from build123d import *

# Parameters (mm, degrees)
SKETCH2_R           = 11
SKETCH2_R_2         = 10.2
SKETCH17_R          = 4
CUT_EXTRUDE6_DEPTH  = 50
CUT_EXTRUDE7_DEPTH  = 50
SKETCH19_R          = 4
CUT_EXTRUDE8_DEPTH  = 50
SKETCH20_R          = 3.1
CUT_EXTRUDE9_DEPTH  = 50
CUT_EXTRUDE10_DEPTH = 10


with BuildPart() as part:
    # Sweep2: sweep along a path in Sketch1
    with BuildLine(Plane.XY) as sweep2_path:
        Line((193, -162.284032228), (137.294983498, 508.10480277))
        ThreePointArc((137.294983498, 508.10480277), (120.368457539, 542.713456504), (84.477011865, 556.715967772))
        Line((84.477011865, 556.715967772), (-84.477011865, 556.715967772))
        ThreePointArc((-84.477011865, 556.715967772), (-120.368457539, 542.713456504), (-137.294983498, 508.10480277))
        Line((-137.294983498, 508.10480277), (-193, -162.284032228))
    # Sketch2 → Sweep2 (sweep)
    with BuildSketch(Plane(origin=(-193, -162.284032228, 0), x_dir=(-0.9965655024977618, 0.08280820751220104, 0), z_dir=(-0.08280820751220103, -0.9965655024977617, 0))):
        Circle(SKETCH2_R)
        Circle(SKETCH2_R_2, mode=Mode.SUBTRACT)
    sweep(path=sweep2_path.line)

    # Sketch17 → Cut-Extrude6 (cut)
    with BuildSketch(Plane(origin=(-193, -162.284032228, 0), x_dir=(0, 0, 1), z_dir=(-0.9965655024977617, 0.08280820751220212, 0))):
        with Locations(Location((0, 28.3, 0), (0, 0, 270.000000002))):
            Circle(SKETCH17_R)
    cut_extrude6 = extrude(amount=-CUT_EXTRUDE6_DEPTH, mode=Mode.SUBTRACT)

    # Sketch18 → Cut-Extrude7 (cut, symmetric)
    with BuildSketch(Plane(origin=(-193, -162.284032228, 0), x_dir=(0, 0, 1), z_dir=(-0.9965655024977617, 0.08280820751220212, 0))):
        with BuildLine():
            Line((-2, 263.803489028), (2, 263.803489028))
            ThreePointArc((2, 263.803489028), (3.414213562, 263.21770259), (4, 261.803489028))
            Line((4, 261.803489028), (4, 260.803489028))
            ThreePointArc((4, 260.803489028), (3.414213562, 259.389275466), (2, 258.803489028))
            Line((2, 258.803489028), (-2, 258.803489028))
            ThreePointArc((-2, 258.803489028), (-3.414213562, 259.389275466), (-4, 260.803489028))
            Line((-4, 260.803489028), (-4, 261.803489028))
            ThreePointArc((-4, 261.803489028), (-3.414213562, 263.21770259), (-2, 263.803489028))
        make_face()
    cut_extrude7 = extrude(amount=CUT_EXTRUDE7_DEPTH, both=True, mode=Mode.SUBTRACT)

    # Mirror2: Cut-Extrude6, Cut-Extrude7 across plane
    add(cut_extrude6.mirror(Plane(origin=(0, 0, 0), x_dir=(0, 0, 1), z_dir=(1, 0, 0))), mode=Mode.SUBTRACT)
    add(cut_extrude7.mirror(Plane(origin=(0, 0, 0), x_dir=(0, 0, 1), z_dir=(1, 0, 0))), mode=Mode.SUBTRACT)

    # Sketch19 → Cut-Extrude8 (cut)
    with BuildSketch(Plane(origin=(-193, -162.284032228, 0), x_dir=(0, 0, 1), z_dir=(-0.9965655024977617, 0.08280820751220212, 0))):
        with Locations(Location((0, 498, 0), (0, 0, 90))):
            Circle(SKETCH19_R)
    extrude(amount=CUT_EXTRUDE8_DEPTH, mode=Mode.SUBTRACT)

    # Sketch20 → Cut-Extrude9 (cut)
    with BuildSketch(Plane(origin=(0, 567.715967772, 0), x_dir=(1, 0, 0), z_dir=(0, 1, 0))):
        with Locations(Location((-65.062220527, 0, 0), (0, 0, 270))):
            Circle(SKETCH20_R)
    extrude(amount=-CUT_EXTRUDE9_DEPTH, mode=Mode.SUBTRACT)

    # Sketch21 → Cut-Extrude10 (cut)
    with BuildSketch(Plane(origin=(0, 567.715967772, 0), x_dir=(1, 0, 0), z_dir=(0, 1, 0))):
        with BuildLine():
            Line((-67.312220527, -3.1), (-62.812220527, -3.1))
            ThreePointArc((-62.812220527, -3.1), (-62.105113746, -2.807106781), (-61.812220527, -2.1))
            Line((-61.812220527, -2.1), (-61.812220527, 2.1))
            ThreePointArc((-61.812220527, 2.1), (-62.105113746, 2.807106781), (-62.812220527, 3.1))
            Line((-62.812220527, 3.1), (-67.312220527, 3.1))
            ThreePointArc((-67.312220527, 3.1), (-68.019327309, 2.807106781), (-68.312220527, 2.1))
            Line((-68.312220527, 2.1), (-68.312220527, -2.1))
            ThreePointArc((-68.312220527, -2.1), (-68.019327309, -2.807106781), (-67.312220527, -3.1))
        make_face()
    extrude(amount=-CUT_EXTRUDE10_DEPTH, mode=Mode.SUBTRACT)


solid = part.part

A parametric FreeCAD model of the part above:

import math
import FreeCAD as App
import Part
import Sketcher

V = App.Vector
Q = App.Units.Quantity

doc = App.newDocument("Part")
body = doc.addObject("PartDesign::Body", "Body")

# Sketch on an angled plane
sketch1 = body.newObject("Sketcher::SketchObject", "Sketch")
sketch1.Placement = App.Placement(V(-193, -162.284032, 0), App.Rotation(V(-0.996565502, 0.082808208, 0), V(0, 0, -0.999999999), V(-0.082808208, -0.996565502, 0), "ZXY"))
sketch1.addGeometry(Part.Circle(V(0, 0, 0), V(0, 0, 1), 11), False)
sketch1.addGeometry(Part.Circle(V(0, 0, 0), V(0, 0, 1), 10), False)
sketch1.addConstraint(Sketcher.Constraint("Coincident", 0, 3, -1, 1))
sketch1.addConstraint(Sketcher.Constraint("Coincident", 1, 3, -1, 1))
sketch1.addConstraint(Sketcher.Constraint("Diameter", 0, 22.0))
sketch1.addConstraint(Sketcher.Constraint("Diameter", 1, 20.4))

# Sketch on XY plane
sketch2 = body.newObject("Sketcher::SketchObject", "Sketch001")
sketch2.AttachmentSupport = (doc.getObject("XY_Plane"), [""])
sketch2.MapMode = "FlatFace"
sketch2.addGeometry(Part.LineSegment(V(193, -162, 0), V(137, 508, 0)), False)
sketch2.addGeometry(Part.ArcOfCircle(Part.Circle(V(84, 504, 0), V(0, 0, 1), 53), math.radians(5), math.radians(90)), False)
sketch2.addGeometry(Part.LineSegment(V(84, 557, 0), V(-84, 557, 0)), False)
sketch2.addGeometry(Part.ArcOfCircle(Part.Circle(V(-84, 504, 0), V(0, 0, 1), 53), math.radians(90), math.radians(175)), False)
sketch2.addGeometry(Part.LineSegment(V(-137, 508, 0), V(-193, -162, 0)), False)
sketch2.addConstraint(Sketcher.Constraint("Tangent", 0, 2, 1, 1))
sketch2.addConstraint(Sketcher.Constraint("Tangent", 1, 2, 2, 1))
sketch2.addConstraint(Sketcher.Constraint("Tangent", 2, 2, 3, 1))
sketch2.addConstraint(Sketcher.Constraint("Tangent", 3, 2, 4, 1))
sketch2.addConstraint(Sketcher.Constraint("Horizontal", 2))
sketch2.addConstraint(Sketcher.Constraint("Equal", 1, 3))
sketch2.addConstraint(Sketcher.Constraint("Symmetric", 0, 2, 3, 2, -2))
sketch2.addConstraint(Sketcher.Constraint("Horizontal", 0, 1, 4, 2))
sketch2.addConstraint(Sketcher.Constraint("Radius", 1, 53.0))
sketch2.addConstraint(Sketcher.Constraint("DistanceX", -1, 1, 0, 1, 193.0))
sketch2.addConstraint(Sketcher.Constraint("DistanceY", 0, 1, 1, 3, 666.0))
sketch2.addConstraint(Sketcher.Constraint("Angle", 0, Q("94.75 deg")))
sketch2.addConstraint(Sketcher.Constraint("DistanceY", -1, 1, 1, 3, 503.715968))
doc.recompute()

additivepipe = body.newObject("PartDesign::AdditivePipe", "AdditivePipe")
additivepipe.Profile = sketch1
additivepipe.Spine = (sketch2, ["Edge1", "Edge2", "Edge3", "Edge4", "Edge5"])

# Sketch on an angled plane
sketch3 = body.newObject("Sketcher::SketchObject", "Sketch002")
sketch3.Placement = App.Placement(V(-193, -162.284032, 0), App.Rotation(V(0, 0, 1), V(0.082808208, 0.996565502, 0), V(-0.996565502, 0.082808208, 0), "ZXY"))
sketch3.addGeometry(Part.Circle(V(0, 28.3, 0), V(0, 0, 1), 4), False)
sketch3.addConstraint(Sketcher.Constraint("PointOnObject", 0, 3, -2))
sketch3.addConstraint(Sketcher.Constraint("Diameter", 0, 8.0))
sketch3.addConstraint(Sketcher.Constraint("DistanceY", -1, 1, 0, 3, 28.3))
pocket1 = body.newObject("PartDesign::Pocket", "Pocket")
pocket1.Profile = sketch3
pocket1.Length = 50

# Sketch on an angled plane
sketch4 = body.newObject("Sketcher::SketchObject", "Sketch003")
sketch4.Placement = App.Placement(V(-193, -162.284032, 0), App.Rotation(V(0, 0, 1), V(0.082808208, 0.996565502, 0), V(-0.996565502, 0.082808208, 0), "ZXY"))
sketch4.addGeometry(Part.LineSegment(V(2, 263.8, 0), V(-2, 263.8, 0)), False)
sketch4.addGeometry(Part.ArcOfCircle(Part.Circle(V(-2, 261.8, 0), V(0, 0, 1), 2), math.radians(90), math.radians(180)), False)
sketch4.addGeometry(Part.LineSegment(V(-4, 261.8, 0), V(-4, 260.8, 0)), False)
sketch4.addGeometry(Part.ArcOfCircle(Part.Circle(V(-2, 260.8, 0), V(0, 0, 1), 2), math.radians(-180), math.radians(-90)), False)
sketch4.addGeometry(Part.LineSegment(V(-2, 258.8, 0), V(2, 258.8, 0)), False)
sketch4.addGeometry(Part.ArcOfCircle(Part.Circle(V(2, 260.8, 0), V(0, 0, 1), 2), math.radians(-90), math.radians(0)), False)
sketch4.addGeometry(Part.LineSegment(V(4, 260.8, 0), V(4, 261.8, 0)), False)
sketch4.addGeometry(Part.ArcOfCircle(Part.Circle(V(2, 261.8, 0), V(0, 0, 1), 2), math.radians(0), math.radians(90)), False)
sketch4.addConstraint(Sketcher.Constraint("Tangent", 0, 2, 1, 1))
sketch4.addConstraint(Sketcher.Constraint("Tangent", 1, 2, 2, 1))
sketch4.addConstraint(Sketcher.Constraint("Tangent", 2, 2, 3, 1))
sketch4.addConstraint(Sketcher.Constraint("Tangent", 3, 2, 4, 1))
sketch4.addConstraint(Sketcher.Constraint("Tangent", 4, 2, 5, 1))
sketch4.addConstraint(Sketcher.Constraint("Tangent", 5, 2, 6, 1))
sketch4.addConstraint(Sketcher.Constraint("Tangent", 6, 2, 7, 1))
sketch4.addConstraint(Sketcher.Constraint("Tangent", 7, 2, 0, 1))
sketch4.addConstraint(Sketcher.Constraint("Horizontal", 0))
sketch4.addConstraint(Sketcher.Constraint("Vertical", 2))
sketch4.addConstraint(Sketcher.Constraint("Horizontal", 4))
sketch4.addConstraint(Sketcher.Constraint("Vertical", 6))
sketch4.addConstraint(Sketcher.Constraint("Equal", 1, 3))
sketch4.addConstraint(Sketcher.Constraint("Equal", 3, 5))
sketch4.addConstraint(Sketcher.Constraint("Equal", 5, 7))
sketch4.addConstraint(Sketcher.Constraint("Radius", 1, 2.0))
sketch4.addConstraint(Sketcher.Constraint("DistanceX", 0, 2, 0, 1, 4.0))
sketch4.addConstraint(Sketcher.Constraint("DistanceY", 2, 2, 2, 1, 1.0))
sketch4.addConstraint(Sketcher.Constraint("DistanceX", 1, 3, -1, 1, 2.0))
sketch4.addConstraint(Sketcher.Constraint("DistanceY", -1, 1, 1, 3, 261.803489))
pocket2 = body.newObject("PartDesign::Pocket", "Pocket001")
pocket2.Profile = sketch4
pocket2.Length = 100
pocket2.Midplane = True
doc.recompute()

mirrored = body.newObject("PartDesign::Mirrored", "Mirrored")
mirrored.Originals = [pocket1, pocket2]
mirrored.MirrorPlane = (doc.getObject("YZ_Plane"), [""])
body.Tip = mirrored

# Sketch on an angled plane
sketch5 = body.newObject("Sketcher::SketchObject", "Sketch004")
sketch5.Placement = App.Placement(V(-193, -162.284032, 0), App.Rotation(V(0, 0, 1), V(0.082808208, 0.996565502, 0), V(-0.996565502, 0.082808208, 0), "ZXY"))
sketch5.addGeometry(Part.Circle(V(0, 498, 0), V(0, 0, 1), 4), False)
sketch5.addConstraint(Sketcher.Constraint("PointOnObject", 0, 3, -2))
sketch5.addConstraint(Sketcher.Constraint("Diameter", 0, 8.0))
sketch5.addConstraint(Sketcher.Constraint("DistanceY", -1, 1, 0, 3, 498.0))
pocket3 = body.newObject("PartDesign::Pocket", "Pocket002")
pocket3.Profile = sketch5
pocket3.Length = 50
pocket3.Reversed = True

# Sketch on XZ plane
sketch6 = body.newObject("Sketcher::SketchObject", "Sketch005")
sketch6.AttachmentSupport = (doc.getObject("XZ_Plane"), [""])
sketch6.MapMode = "FlatFace"
sketch6.AttachmentOffset = App.Placement(V(0, 0, -567.715968), App.Rotation())
sketch6.addGeometry(Part.Circle(V(-65.1, 0, 0), V(0, 0, 1), 3.1), False)
sketch6.addConstraint(Sketcher.Constraint("PointOnObject", 0, 3, -1))
sketch6.addConstraint(Sketcher.Constraint("Diameter", 0, 6.2))
sketch6.addConstraint(Sketcher.Constraint("DistanceX", 0, 3, -1, 1, 65.062221))
pocket4 = body.newObject("PartDesign::Pocket", "Pocket003")
pocket4.Profile = sketch6
pocket4.Length = 50
pocket4.Reversed = True

# Sketch on XZ plane
sketch7 = body.newObject("Sketcher::SketchObject", "Sketch006")
sketch7.AttachmentSupport = (doc.getObject("XZ_Plane"), [""])
sketch7.MapMode = "FlatFace"
sketch7.AttachmentOffset = App.Placement(V(0, 0, -567.715968), App.Rotation())
sketch7.addGeometry(Part.LineSegment(V(-67.3, 3.1, 0), V(-62.8, 3.1, 0)), False)
sketch7.addGeometry(Part.ArcOfCircle(Part.Circle(V(-62.8, 2.1, 0), V(0, 0, 1), 1), math.radians(0), math.radians(90)), False)
sketch7.addGeometry(Part.LineSegment(V(-61.8, 2.1, 0), V(-61.8, -2.1, 0)), False)
sketch7.addGeometry(Part.ArcOfCircle(Part.Circle(V(-62.8, -2.1, 0), V(0, 0, 1), 1), math.radians(-90), math.radians(0)), False)
sketch7.addGeometry(Part.LineSegment(V(-62.8, -3.1, 0), V(-67.3, -3.1, 0)), False)
sketch7.addGeometry(Part.ArcOfCircle(Part.Circle(V(-67.3, -2.1, 0), V(0, 0, 1), 1), math.radians(180), math.radians(270)), False)
sketch7.addGeometry(Part.LineSegment(V(-68.3, -2.1, 0), V(-68.3, 2.1, 0)), False)
sketch7.addGeometry(Part.ArcOfCircle(Part.Circle(V(-67.3, 2.1, 0), V(0, 0, 1), 1), math.radians(90), math.radians(180)), False)
sketch7.addConstraint(Sketcher.Constraint("Tangent", 0, 2, 1, 2))
sketch7.addConstraint(Sketcher.Constraint("Tangent", 1, 1, 2, 1))
sketch7.addConstraint(Sketcher.Constraint("Tangent", 2, 2, 3, 2))
sketch7.addConstraint(Sketcher.Constraint("Tangent", 3, 1, 4, 1))
sketch7.addConstraint(Sketcher.Constraint("Tangent", 4, 2, 5, 2))
sketch7.addConstraint(Sketcher.Constraint("Tangent", 5, 1, 6, 1))
sketch7.addConstraint(Sketcher.Constraint("Tangent", 6, 2, 7, 2))
sketch7.addConstraint(Sketcher.Constraint("Tangent", 7, 1, 0, 1))
sketch7.addConstraint(Sketcher.Constraint("Horizontal", 0))
sketch7.addConstraint(Sketcher.Constraint("Vertical", 2))
sketch7.addConstraint(Sketcher.Constraint("Horizontal", 4))
sketch7.addConstraint(Sketcher.Constraint("Vertical", 6))
sketch7.addConstraint(Sketcher.Constraint("Equal", 1, 3))
sketch7.addConstraint(Sketcher.Constraint("Equal", 3, 5))
sketch7.addConstraint(Sketcher.Constraint("Equal", 5, 7))
sketch7.addConstraint(Sketcher.Constraint("Radius", 1, 1.0))
sketch7.addConstraint(Sketcher.Constraint("DistanceX", 0, 1, 0, 2, 4.5))
sketch7.addConstraint(Sketcher.Constraint("DistanceY", 2, 2, 2, 1, 4.2))
sketch7.addConstraint(Sketcher.Constraint("DistanceY", -1, 1, 1, 3, 2.1))
sketch7.addConstraint(Sketcher.Constraint("DistanceX", 1, 3, -1, 1, 62.812221))
pocket5 = body.newObject("PartDesign::Pocket", "Pocket004")
pocket5.Profile = sketch7
pocket5.Length = 10
pocket5.Reversed = True

doc.recompute()
